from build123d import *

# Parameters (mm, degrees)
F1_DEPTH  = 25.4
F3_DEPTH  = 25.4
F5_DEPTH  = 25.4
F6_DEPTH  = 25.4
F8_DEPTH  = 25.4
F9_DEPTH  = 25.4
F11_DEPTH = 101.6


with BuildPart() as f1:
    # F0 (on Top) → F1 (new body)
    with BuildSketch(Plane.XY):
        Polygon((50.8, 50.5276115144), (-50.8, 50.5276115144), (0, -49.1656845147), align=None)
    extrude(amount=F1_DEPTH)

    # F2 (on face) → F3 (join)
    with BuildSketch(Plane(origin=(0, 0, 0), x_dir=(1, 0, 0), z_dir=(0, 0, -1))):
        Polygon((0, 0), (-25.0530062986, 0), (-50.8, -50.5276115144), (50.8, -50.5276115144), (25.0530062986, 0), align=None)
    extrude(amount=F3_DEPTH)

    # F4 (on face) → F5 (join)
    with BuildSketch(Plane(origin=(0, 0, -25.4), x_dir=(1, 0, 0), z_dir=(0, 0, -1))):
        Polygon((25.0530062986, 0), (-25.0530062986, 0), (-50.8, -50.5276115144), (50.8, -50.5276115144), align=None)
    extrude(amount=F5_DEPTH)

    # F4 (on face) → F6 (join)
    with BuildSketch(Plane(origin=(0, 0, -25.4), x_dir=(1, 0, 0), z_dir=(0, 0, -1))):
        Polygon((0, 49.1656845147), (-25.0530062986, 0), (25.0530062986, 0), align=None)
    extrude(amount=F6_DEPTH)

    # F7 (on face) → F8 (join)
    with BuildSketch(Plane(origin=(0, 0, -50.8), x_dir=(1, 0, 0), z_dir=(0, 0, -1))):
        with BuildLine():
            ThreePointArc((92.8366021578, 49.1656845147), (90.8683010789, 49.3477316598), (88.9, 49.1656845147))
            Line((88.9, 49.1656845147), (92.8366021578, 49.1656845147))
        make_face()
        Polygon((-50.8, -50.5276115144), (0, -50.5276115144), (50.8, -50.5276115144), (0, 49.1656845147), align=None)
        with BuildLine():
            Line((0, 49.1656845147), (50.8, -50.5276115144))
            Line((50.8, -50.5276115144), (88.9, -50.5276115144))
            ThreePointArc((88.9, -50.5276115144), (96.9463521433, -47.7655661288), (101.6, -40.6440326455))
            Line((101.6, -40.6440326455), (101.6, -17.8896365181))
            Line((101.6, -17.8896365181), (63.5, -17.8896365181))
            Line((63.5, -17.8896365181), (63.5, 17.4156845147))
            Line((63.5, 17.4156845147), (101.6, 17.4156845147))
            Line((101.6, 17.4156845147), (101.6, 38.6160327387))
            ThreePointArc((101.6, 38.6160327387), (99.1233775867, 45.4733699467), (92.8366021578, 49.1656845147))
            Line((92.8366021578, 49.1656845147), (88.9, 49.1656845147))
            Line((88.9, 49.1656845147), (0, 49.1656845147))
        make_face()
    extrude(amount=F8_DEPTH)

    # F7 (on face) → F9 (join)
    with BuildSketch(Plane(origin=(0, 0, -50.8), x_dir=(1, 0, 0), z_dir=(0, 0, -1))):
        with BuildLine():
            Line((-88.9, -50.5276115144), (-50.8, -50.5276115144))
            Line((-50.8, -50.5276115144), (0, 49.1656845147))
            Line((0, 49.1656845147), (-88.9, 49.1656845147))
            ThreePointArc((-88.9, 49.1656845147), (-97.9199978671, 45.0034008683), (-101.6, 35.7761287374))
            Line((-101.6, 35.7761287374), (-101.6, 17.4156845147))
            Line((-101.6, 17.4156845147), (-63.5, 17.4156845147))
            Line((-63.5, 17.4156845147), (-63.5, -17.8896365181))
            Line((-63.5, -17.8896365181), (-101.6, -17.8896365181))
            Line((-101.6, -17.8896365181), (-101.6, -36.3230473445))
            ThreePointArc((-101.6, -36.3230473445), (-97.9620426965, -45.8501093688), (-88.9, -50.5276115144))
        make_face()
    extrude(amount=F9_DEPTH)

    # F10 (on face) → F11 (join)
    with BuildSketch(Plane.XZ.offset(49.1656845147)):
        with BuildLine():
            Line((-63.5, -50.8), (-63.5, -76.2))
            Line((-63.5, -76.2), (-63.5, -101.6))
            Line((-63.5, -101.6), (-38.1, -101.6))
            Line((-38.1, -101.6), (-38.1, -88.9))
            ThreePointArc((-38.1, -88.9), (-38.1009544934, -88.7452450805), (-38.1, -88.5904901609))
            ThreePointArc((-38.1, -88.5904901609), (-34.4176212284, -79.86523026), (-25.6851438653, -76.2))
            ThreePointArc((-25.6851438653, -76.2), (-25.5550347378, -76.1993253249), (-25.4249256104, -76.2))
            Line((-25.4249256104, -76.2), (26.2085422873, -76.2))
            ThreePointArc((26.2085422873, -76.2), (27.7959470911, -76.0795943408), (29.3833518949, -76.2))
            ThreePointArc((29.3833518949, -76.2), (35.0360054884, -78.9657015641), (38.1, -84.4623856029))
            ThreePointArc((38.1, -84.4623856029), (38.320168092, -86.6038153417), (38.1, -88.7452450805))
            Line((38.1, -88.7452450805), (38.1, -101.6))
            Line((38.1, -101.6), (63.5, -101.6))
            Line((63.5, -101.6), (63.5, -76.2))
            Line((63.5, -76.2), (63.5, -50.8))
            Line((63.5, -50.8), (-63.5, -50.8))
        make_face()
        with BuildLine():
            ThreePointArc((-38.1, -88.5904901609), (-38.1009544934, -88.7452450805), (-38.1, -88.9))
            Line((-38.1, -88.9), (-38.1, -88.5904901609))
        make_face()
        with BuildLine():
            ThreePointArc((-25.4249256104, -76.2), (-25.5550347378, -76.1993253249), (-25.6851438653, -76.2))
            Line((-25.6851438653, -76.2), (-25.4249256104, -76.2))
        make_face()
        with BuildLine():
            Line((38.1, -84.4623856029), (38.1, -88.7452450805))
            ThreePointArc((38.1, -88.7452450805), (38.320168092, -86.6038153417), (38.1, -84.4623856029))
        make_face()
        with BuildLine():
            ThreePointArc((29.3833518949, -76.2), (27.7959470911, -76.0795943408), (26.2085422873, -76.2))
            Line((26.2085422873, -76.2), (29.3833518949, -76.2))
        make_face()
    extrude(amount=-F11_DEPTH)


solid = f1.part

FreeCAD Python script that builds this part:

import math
import FreeCAD as App
import Part
import Sketcher
from FreeCAD import Vector
Q = App.Units.Quantity

doc = App.newDocument("Part")
body = doc.addObject("PartDesign::Body", "Body")

sketch1 = body.newObject("Sketcher::SketchObject", "Sketch")
sketch1.AttachmentSupport = (doc.getObject("XY_Plane"), [""])
sketch1.MapMode = "FlatFace"
sketch1.addGeometry(Part.LineSegment(Vector(50.8, 50.527612, 0), Vector(-50.8, 50.527612, 0)), False)
sketch1.addGeometry(Part.LineSegment(Vector(-50.8, 50.527612, 0), Vector(0, -49.165685, 0)), False)
sketch1.addGeometry(Part.LineSegment(Vector(0, -49.165685, 0), Vector(50.8, 50.527612, 0)), False)
sketch1.addConstraint(Sketcher.Constraint("Coincident", 0, 2, 1, 1))
sketch1.addConstraint(Sketcher.Constraint("Coincident", 1, 2, 2, 1))
sketch1.addConstraint(Sketcher.Constraint("Coincident", 2, 2, 0, 1))
sketch1.addConstraint(Sketcher.Constraint("Horizontal", 0))
sketch1.addConstraint(Sketcher.Constraint("PointOnObject", 1, 2, -2))
sketch1.addConstraint(Sketcher.Constraint("Equal", 1, 2))
sketch1.addConstraint(Sketcher.Constraint("DistanceX", 0, 2, 0, 1, Q("4 in")))
sketch1.addConstraint(Sketcher.Constraint("DistanceY", -1, 1, 0, 2, Q("50.527612 mm")))
sketch1.addConstraint(Sketcher.Constraint("Distance", 1, Q("111.890095 mm")))
pad1 = body.newObject("PartDesign::Pad", "Pad")
pad1.Profile = sketch1
pad1.Length = Q("1 in")

sketch2 = body.newObject("Sketcher::SketchObject", "Sketch001")
sketch2.AttachmentSupport = (doc.getObject("XY_Plane"), [""])
sketch2.MapMode = "FlatFace"
sketch2.addGeometry(Part.LineSegment(Vector(-25.053006, 0, 0), Vector(-50.8, 50.527612, 0)), False)
sketch2.addGeometry(Part.LineSegment(Vector(-50.8, 50.527612, 0), Vector(50.8, 50.527612, 0)), False)
sketch2.addGeometry(Part.LineSegment(Vector(50.8, 50.527612, 0), Vector(25.053006, 0, 0)), False)
sketch2.addGeometry(Part.LineSegment(Vector(25.053006, 0, 0), Vector(-25.053006, 0, 0)), False)
sketch2.addConstraint(Sketcher.Constraint("Coincident", 0, 2, 1, 1))
sketch2.addConstraint(Sketcher.Constraint("Coincident", 1, 2, 2, 1))
sketch2.addConstraint(Sketcher.Constraint("Coincident", 2, 2, 3, 1))
sketch2.addConstraint(Sketcher.Constraint("Coincident", 3, 2, 0, 1))
sketch2.addConstraint(Sketcher.Constraint("Horizontal", 1))
sketch2.addConstraint(Sketcher.Constraint("Horizontal", 3))
sketch2.addConstraint(Sketcher.Constraint("Symmetric", 2, 2, 3, 2, -1, 1))
sketch2.addConstraint(Sketcher.Constraint("Equal", 0, 2))
sketch2.addConstraint(Sketcher.Constraint("DistanceX", 1, 1, 1, 2, Q("4 in")))
sketch2.addConstraint(Sketcher.Constraint("DistanceX", 3, 2, 3, 1, Q("50.106013 mm")))
sketch2.addConstraint(Sketcher.Constraint("DistanceY", -1, 1, 0, 2, Q("50.527612 mm")))
pad2 = body.newObject("PartDesign::Pad", "Pad001")
pad2.Profile = sketch2
pad2.Length = Q("1 in")
pad2.Reversed = True

sketch3 = body.newObject("Sketcher::SketchObject", "Sketch002")
sketch3.AttachmentSupport = (doc.getObject("XY_Plane"), [""])
sketch3.MapMode = "FlatFace"
sketch3.AttachmentOffset = App.Placement(Vector(0, 0, -1 * 25.4), App.Rotation())
sketch3.addGeometry(Part.LineSegment(Vector(25.053006, 0, 0), Vector(-25.053006, 0, 0)), False)
sketch3.addGeometry(Part.LineSegment(Vector(-25.053006, 0, 0), Vector(-50.8, 50.527612, 0)), False)
sketch3.addGeometry(Part.LineSegment(Vector(-50.8, 50.527612, 0), Vector(50.8, 50.527612, 0)), False)
sketch3.addGeometry(Part.LineSegment(Vector(50.8, 50.527612, 0), Vector(25.053006, 0, 0)), False)
sketch3.addConstraint(Sketcher.Constraint("Coincident", 0, 2, 1, 1))
sketch3.addConstraint(Sketcher.Constraint("Coincident", 1, 2, 2, 1))
sketch3.addConstraint(Sketcher.Constraint("Coincident", 2, 2, 3, 1))
sketch3.addConstraint(Sketcher.Constraint("Coincident", 3, 2, 0, 1))
sketch3.addConstraint(Sketcher.Constraint("Horizontal", 0))
sketch3.addConstraint(Sketcher.Constraint("Horizontal", 2))
sketch3.addConstraint(Sketcher.Constraint("Symmetric", 0, 2, 3, 2, -1, 1))
sketch3.addConstraint(Sketcher.Constraint("Equal", 1, 3))
sketch3.addConstraint(Sketcher.Constraint("DistanceX", 2, 1, 2, 2, Q("4 in")))
sketch3.addConstraint(Sketcher.Constraint("DistanceX", 0, 2, 0, 1, Q("50.106013 mm")))
sketch3.addConstraint(Sketcher.Constraint("DistanceY", -1, 1, 1, 2, Q("50.527612 mm")))
pad3 = body.newObject("PartDesign::Pad", "Pad002")
pad3.Profile = sketch3
pad3.Length = Q("1 in")
pad3.Reversed = True

sketch4 = body.newObject("Sketcher::SketchObject", "Sketch003")
sketch4.AttachmentSupport = (doc.getObject("XY_Plane"), [""])
sketch4.MapMode = "FlatFace"
sketch4.AttachmentOffset = App.Placement(Vector(0, 0, -1 * 25.4), App.Rotation())
sketch4.addGeometry(Part.LineSegment(Vector(0, -49.165685, 0), Vector(-25.053006, 0, 0)), False)
sketch4.addGeometry(Part.LineSegment(Vector(-25.053006, 0, 0), Vector(25.053006, 0, 0)), False)
sketch4.addGeometry(Part.LineSegment(Vector(25.053006, 0, 0), Vector(0, -49.165685, 0)), False)
sketch4.addConstraint(Sketcher.Constraint("Coincident", 0, 2, 1, 1))
sketch4.addConstraint(Sketcher.Constraint("Coincident", 1, 2, 2, 1))
sketch4.addConstraint(Sketcher.Constraint("Coincident", 2, 2, 0, 1))
sketch4.addConstraint(Sketcher.Constraint("Horizontal", 1))
sketch4.addConstraint(Sketcher.Constraint("Symmetric", 0, 2, 1, 2, -1, 1))
sketch4.addConstraint(Sketcher.Constraint("PointOnObject", 2, 2, -2))
sketch4.addConstraint(Sketcher.Constraint("DistanceX", 1, 1, 1, 2, Q("50.106013 mm")))
sketch4.addConstraint(Sketcher.Constraint("Distance", 0, Q("55.180773 mm")))
pad4 = body.newObject("PartDesign::Pad", "Pad003")
pad4.Profile = sketch4
pad4.Length = Q("1 in")
pad4.Reversed = True

sketch5 = body.newObject("Sketcher::SketchObject", "Sketch004")
sketch5.AttachmentSupport = (doc.getObject("XY_Plane"), [""])
sketch5.MapMode = "FlatFace"
sketch5.AttachmentOffset = App.Placement(Vector(0, 0, -2 * 25.4), App.Rotation())
sketch5.addGeometry(Part.ArcOfCircle(Part.Circle(Vector(90.868301, -38.616033, 0), Vector(0, 0, 1), 10.731699), math.radians(-100.568447), math.radians(-79.431553)), False)
sketch5.addGeometry(Part.LineSegment(Vector(88.9, -49.165685, 0), Vector(0, -49.165685, 0)), False)
sketch5.addGeometry(Part.LineSegment(Vector(0, -49.165685, 0), Vector(-50.8, 50.527612, 0)), False)
sketch5.addGeometry(Part.LineSegment(Vector(-50.8, 50.527612, 0), Vector(88.9, 50.527612, 0)), False)
sketch5.addGeometry(Part.ArcOfCircle(Part.Circle(Vector(88.9, 37.426328, 0), Vector(0, 0, 1), 13.101283), math.radians(14.217426), math.radians(90)), False)
sketch5.addGeometry(Part.LineSegment(Vector(101.6, 40.644033, 0), Vector(101.6, 17.889637, 0)), False)
sketch5.addGeometry(Part.LineSegment(Vector(101.6, 17.889637, 0), Vector(63.5, 17.889637, 0)), False)
sketch5.addGeometry(Part.LineSegment(Vector(63.5, 17.889637, 0), Vector(63.5, -17.415685, 0)), False)
sketch5.addGeometry(Part.LineSegment(Vector(63.5, -17.415685, 0), Vector(101.6, -17.415685, 0)), False)
sketch5.addGeometry(Part.LineSegment(Vector(101.6, -17.415685, 0), Vector(101.6, -38.616033, 0)), False)
sketch5.addGeometry(Part.ArcOfCircle(Part.Circle(Vector(90.868301, -38.616033, 0), Vector(0, 0, 1), 10.731699), math.radians(-79.431553), math.radians(0)), False)
sketch5.addConstraint(Sketcher.Constraint("Coincident", 0, 1, 1, 1))
sketch5.addConstraint(Sketcher.Constraint("Coincident", 1, 2, 2, 1))
sketch5.addConstraint(Sketcher.Constraint("Coincident", 2, 2, 3, 1))
sketch5.addConstraint(Sketcher.Constraint("Tangent", 3, 2, 4, 2))
sketch5.addConstraint(Sketcher.Constraint("Coincident", 4, 1, 5, 1))
sketch5.addConstraint(Sketcher.Constraint("Coincident", 5, 2, 6, 1))
sketch5.addConstraint(Sketcher.Constraint("Coincident", 6, 2, 7, 1))
sketch5.addConstraint(Sketcher.Constraint("Coincident", 7, 2, 8, 1))
sketch5.addConstraint(Sketcher.Constraint("Coincident", 8, 2, 9, 1))
sketch5.addConstraint(Sketcher.Constraint("Tangent", 9, 2, 10, 2))
sketch5.addConstraint(Sketcher.Constraint("Tangent", 10, 1, 0, 2))
sketch5.addConstraint(Sketcher.Constraint("Horizontal", 1))
sketch5.addConstraint(Sketcher.Constraint("Horizontal", 3))
sketch5.addConstraint(Sketcher.Constraint("Vertical", 5))
sketch5.addConstraint(Sketcher.Constraint("Horizontal", 6))
sketch5.addConstraint(Sketcher.Constraint("Vertical", 7))
sketch5.addConstraint(Sketcher.Constraint("Horizontal", 8))
sketch5.addConstraint(Sketcher.Constraint("Vertical", 9))
sketch5.addConstraint(Sketcher.Constraint("Equal", 0, 10))
sketch5.addConstraint(Sketcher.Constraint("PointOnObject", 1, 2, -2))
sketch5.addConstraint(Sketcher.Constraint("Horizontal", 1, 2, 10, 1))
sketch5.addConstraint(Sketcher.Constraint("Vertical", 4, 3, 0, 1))
sketch5.addConstraint(Sketcher.Constraint("Vertical", 5, 2, 8, 2))
sketch5.addConstraint(Sketcher.Constraint("DistanceX", 1, 2, 1, 1, Q("3.5 in")))
sketch5.addConstraint(Sketcher.Constraint("DistanceX", 3, 1, 3, 2, Q("5.5 in")))
sketch5.addConstraint(Sketcher.Constraint("DistanceX", 6, 2, 6, 1, Q("1.5 in")))
sketch5.addConstraint(Sketcher.Constraint("DistanceX", -1, 1, 4, 1, Q("4 in")))
sketch5.addConstraint(Sketcher.Constraint("Radius", 0, Q("10.731699 mm")))
sketch5.addConstraint(Sketcher.Constraint("DistanceY", 0, 1, 7, 2, Q("1.25 in")))
sketch5.addConstraint(Sketcher.Constraint("Radius", 4, Q("13.101283 mm")))
sketch5.addConstraint(Sketcher.Constraint("DistanceY", 7, 2, 7, 1, Q("35.305321 mm")))
sketch5.addConstraint(Sketcher.Constraint("DistanceY", 5, 2, 5, 1, Q("22.754396 mm")))
sketch5.addConstraint(Sketcher.Constraint("DistanceY", -1, 1, 4, 3, Q("37.426328 mm")))
pad5 = body.newObject("PartDesign::Pad", "Pad004")
pad5.Profile = sketch5
pad5.Length = Q("1 in")
pad5.Reversed = True

sketch6 = body.newObject("Sketcher::SketchObject", "Sketch005")
sketch6.AttachmentSupport = (doc.getObject("XY_Plane"), [""])
sketch6.MapMode = "FlatFace"
sketch6.AttachmentOffset = App.Placement(Vector(0, 0, -2 * 25.4), App.Rotation())
sketch6.addGeometry(Part.LineSegment(Vector(-88.9, 50.527612, 0), Vector(-50.8, 50.527612, 0)), False)
sketch6.addGeometry(Part.LineSegment(Vector(-50.8, 50.527612, 0), Vector(0, -49.165685, 0)), False)
sketch6.addGeometry(Part.LineSegment(Vector(0, -49.165685, 0), Vector(-88.9, -49.165685, 0)), False)
sketch6.addGeometry(Part.ArcOfCircle(Part.Circle(Vector(-88.191724, -35.776129, 0), Vector(0, 0, 1), 13.408276), math.radians(180), math.radians(266.972011)), False)
sketch6.addGeometry(Part.LineSegment(Vector(-101.6, -35.776129, 0), Vector(-101.6, -17.415685, 0)), False)
sketch6.addGeometry(Part.LineSegment(Vector(-101.6, -17.415685, 0), Vector(-63.5, -17.415685, 0)), False)
sketch6.addGeometry(Part.LineSegment(Vector(-63.5, -17.415685, 0), Vector(-63.5, 17.889637, 0)), False)
sketch6.addGeometry(Part.LineSegment(Vector(-63.5, 17.889637, 0), Vector(-101.6, 17.889637, 0)), False)
sketch6.addGeometry(Part.LineSegment(Vector(-101.6, 17.889637, 0), Vector(-101.6, 36.323047, 0)), False)
sketch6.addGeometry(Part.ArcOfCircle(Part.Circle(Vector(-87.306313, 36.323047, 0), Vector(0, 0, 1), 14.293687), math.radians(96.401552), math.radians(180)), False)
sketch6.addConstraint(Sketcher.Constraint("Coincident", 0, 2, 1, 1))
sketch6.addConstraint(Sketcher.Constraint("Coincident", 1, 2, 2, 1))
sketch6.addConstraint(Sketcher.Constraint("Coincident", 2, 2, 3, 2))
sketch6.addConstraint(Sketcher.Constraint("Tangent", 3, 1, 4, 1))
sketch6.addConstraint(Sketcher.Constraint("Coincident", 4, 2, 5, 1))
sketch6.addConstraint(Sketcher.Constraint("Coincident", 5, 2, 6, 1))
sketch6.addConstraint(Sketcher.Constraint("Coincident", 6, 2, 7, 1))
sketch6.addConstraint(Sketcher.Constraint("Coincident", 7, 2, 8, 1))
sketch6.addConstraint(Sketcher.Constraint("Tangent", 8, 2, 9, 2))
sketch6.addConstraint(Sketcher.Constraint("Coincident", 9, 1, 0, 1))
sketch6.addConstraint(Sketcher.Constraint("Horizontal", 0))
sketch6.addConstraint(Sketcher.Constraint("Horizontal", 2))
sketch6.addConstraint(Sketcher.Constraint("Vertical", 4))
sketch6.addConstraint(Sketcher.Constraint("Horizontal", 5))
sketch6.addConstraint(Sketcher.Constraint("Vertical", 6))
sketch6.addConstraint(Sketcher.Constraint("Horizontal", 7))
sketch6.addConstraint(Sketcher.Constraint("Vertical", 8))
sketch6.addConstraint(Sketcher.Constraint("PointOnObject", 1, 2, -2))
sketch6.addConstraint(Sketcher.Constraint("Vertical", 4, 2, 7, 2))
sketch6.addConstraint(Sketcher.Constraint("Vertical", 2, 2, 9, 1))
sketch6.addConstraint(Sketcher.Constraint("Equal", 0, 5))
sketch6.addConstraint(Sketcher.Constraint("DistanceX", 0, 1, 0, 2, Q("1.5 in")))
sketch6.addConstraint(Sketcher.Constraint("DistanceX", 2, 2, 2, 1, Q("3.5 in")))
sketch6.addConstraint(Sketcher.Constraint("DistanceX", 3, 1, -1, 1, Q("4 in")))
sketch6.addConstraint(Sketcher.Constraint("DistanceY", 2, 2, 4, 2, Q("1.25 in")))
sketch6.addConstraint(Sketcher.Constraint("Radius", 3, Q("13.408276 mm")))
sketch6.addConstraint(Sketcher.Constraint("Radius", 9, Q("14.293687 mm")))
sketch6.addConstraint(Sketcher.Constraint("DistanceY", 6, 1, 6, 2, Q("35.305321 mm")))
sketch6.addConstraint(Sketcher.Constraint("DistanceY", 8, 1, 8, 2, Q("18.433411 mm")))
sketch6.addConstraint(Sketcher.Constraint("DistanceY", 3, 3, -1, 1, Q("35.776129 mm")))
pad6 = body.newObject("PartDesign::Pad", "Pad005")
pad6.Profile = sketch6
pad6.Length = Q("1 in")
pad6.Reversed = True

sketch7 = body.newObject("Sketcher::SketchObject", "Sketch006")
sketch7.AttachmentSupport = (doc.getObject("XZ_Plane"), [""])
sketch7.MapMode = "FlatFace"
sketch7.AttachmentOffset = App.Placement(Vector(0, 0, 49.165685), App.Rotation())
sketch7.addGeometry(Part.LineSegment(Vector(-63.5, -50.8, 0), Vector(-63.5, -101.6, 0)), False)
sketch7.addGeometry(Part.LineSegment(Vector(-63.5, -101.6, 0), Vector(-38.1, -101.6, 0)), False)
sketch7.addGeometry(Part.LineSegment(Vector(-38.1, -101.6, 0), Vector(-38.1, -88.59049, 0)), False)
sketch7.addGeometry(Part.ArcOfCircle(Part.Circle(Vector(-25.555035, -88.745245, 0), Vector(0, 0, 1), 12.54592), math.radians(90.594204), math.radians(179.293234)), False)
sketch7.addGeometry(Part.LineSegment(Vector(-25.685144, -76.2, 0), Vector(29.383352, -76.2, 0)), False)
sketch7.addGeometry(Part.ArcOfCircle(Part.Circle(Vector(27.795947, -86.603815, 0), Vector(0, 0, 1), 10.524221), math.radians(11.740319), math.radians(81.324769)), False)
sketch7.addGeometry(Part.LineSegment(Vector(38.1, -84.462386, 0), Vector(38.1, -101.6, 0)), False)
sketch7.addGeometry(Part.LineSegment(Vector(38.1, -101.6, 0), Vector(63.5, -101.6, 0)), False)
sketch7.addGeometry(Part.LineSegment(Vector(63.5, -101.6, 0), Vector(63.5, -50.8, 0)), False)
sketch7.addGeometry(Part.LineSegment(Vector(63.5, -50.8, 0), Vector(-63.5, -50.8, 0)), False)
sketch7.addConstraint(Sketcher.Constraint("Coincident", 0, 2, 1, 1))
sketch7.addConstraint(Sketcher.Constraint("Coincident", 1, 2, 2, 1))
sketch7.addConstraint(Sketcher.Constraint("Coincident", 2, 2, 3, 2))
sketch7.addConstraint(Sketcher.Constraint("Coincident", 3, 1, 4, 1))
sketch7.addConstraint(Sketcher.Constraint("Coincident", 4, 2, 5, 2))
sketch7.addConstraint(Sketcher.Constraint("Coincident", 5, 1, 6, 1))
sketch7.addConstraint(Sketcher.Constraint("Coincident", 6, 2, 7, 1))
sketch7.addConstraint(Sketcher.Constraint("Coincident", 7, 2, 8, 1))
sketch7.addConstraint(Sketcher.Constraint("Coincident", 8, 2, 9, 1))
sketch7.addConstraint(Sketcher.Constraint("Coincident", 9, 2, 0, 1))
sketch7.addConstraint(Sketcher.Constraint("Vertical", 0))
sketch7.addConstraint(Sketcher.Constraint("Horizontal", 1))
sketch7.addConstraint(Sketcher.Constraint("Vertical", 2))
sketch7.addConstraint(Sketcher.Constraint("Horizontal", 4))
sketch7.addConstraint(Sketcher.Constraint("Vertical", 6))
sketch7.addConstraint(Sketcher.Constraint("Horizontal", 7))
sketch7.addConstraint(Sketcher.Constraint("Vertical", 8))
sketch7.addConstraint(Sketcher.Constraint("Horizontal", 9))
sketch7.addConstraint(Sketcher.Constraint("Symmetric", 1, 2, 6, 2, -2))
sketch7.addConstraint(Sketcher.Constraint("Equal", 1, 7))
sketch7.addConstraint(Sketcher.Constraint("DistanceX", 1, 1, 1, 2, Q("1 in")))
sketch7.addConstraint(Sketcher.Constraint("DistanceX", 9, 2, 9, 1, Q("5 in")))
sketch7.addConstraint(Sketcher.Constraint("DistanceY", 0, 2, 0, 1, Q("2 in")))
sketch7.addConstraint(Sketcher.Constraint("DistanceY", 0, 2, -1, 1, Q("4 in")))
sketch7.addConstraint(Sketcher.Constraint("DistanceY", 3, 1, -1, 1, Q("3 in")))
sketch7.addConstraint(Sketcher.Constraint("Radius", 3, Q("12.54592 mm")))
sketch7.addConstraint(Sketcher.Constraint("Radius", 5, Q("10.524221 mm")))
sketch7.addConstraint(Sketcher.Constraint("DistanceY", 2, 1, 2, 2, Q("13.00951 mm")))
sketch7.addConstraint(Sketcher.Constraint("DistanceX", 4, 1, 4, 2, Q("55.068496 mm")))
sketch7.addConstraint(Sketcher.Constraint("DistanceY", 6, 2, 6, 1, Q("17.137614 mm")))
sketch7.addConstraint(Sketcher.Constraint("DistanceX", -1, 1, 4, 2, Q("29.383352 mm")))
pad7 = body.newObject("PartDesign::Pad", "Pad006")
pad7.Profile = sketch7
pad7.Length = Q("4 in")
pad7.Reversed = True

doc.recompute()
